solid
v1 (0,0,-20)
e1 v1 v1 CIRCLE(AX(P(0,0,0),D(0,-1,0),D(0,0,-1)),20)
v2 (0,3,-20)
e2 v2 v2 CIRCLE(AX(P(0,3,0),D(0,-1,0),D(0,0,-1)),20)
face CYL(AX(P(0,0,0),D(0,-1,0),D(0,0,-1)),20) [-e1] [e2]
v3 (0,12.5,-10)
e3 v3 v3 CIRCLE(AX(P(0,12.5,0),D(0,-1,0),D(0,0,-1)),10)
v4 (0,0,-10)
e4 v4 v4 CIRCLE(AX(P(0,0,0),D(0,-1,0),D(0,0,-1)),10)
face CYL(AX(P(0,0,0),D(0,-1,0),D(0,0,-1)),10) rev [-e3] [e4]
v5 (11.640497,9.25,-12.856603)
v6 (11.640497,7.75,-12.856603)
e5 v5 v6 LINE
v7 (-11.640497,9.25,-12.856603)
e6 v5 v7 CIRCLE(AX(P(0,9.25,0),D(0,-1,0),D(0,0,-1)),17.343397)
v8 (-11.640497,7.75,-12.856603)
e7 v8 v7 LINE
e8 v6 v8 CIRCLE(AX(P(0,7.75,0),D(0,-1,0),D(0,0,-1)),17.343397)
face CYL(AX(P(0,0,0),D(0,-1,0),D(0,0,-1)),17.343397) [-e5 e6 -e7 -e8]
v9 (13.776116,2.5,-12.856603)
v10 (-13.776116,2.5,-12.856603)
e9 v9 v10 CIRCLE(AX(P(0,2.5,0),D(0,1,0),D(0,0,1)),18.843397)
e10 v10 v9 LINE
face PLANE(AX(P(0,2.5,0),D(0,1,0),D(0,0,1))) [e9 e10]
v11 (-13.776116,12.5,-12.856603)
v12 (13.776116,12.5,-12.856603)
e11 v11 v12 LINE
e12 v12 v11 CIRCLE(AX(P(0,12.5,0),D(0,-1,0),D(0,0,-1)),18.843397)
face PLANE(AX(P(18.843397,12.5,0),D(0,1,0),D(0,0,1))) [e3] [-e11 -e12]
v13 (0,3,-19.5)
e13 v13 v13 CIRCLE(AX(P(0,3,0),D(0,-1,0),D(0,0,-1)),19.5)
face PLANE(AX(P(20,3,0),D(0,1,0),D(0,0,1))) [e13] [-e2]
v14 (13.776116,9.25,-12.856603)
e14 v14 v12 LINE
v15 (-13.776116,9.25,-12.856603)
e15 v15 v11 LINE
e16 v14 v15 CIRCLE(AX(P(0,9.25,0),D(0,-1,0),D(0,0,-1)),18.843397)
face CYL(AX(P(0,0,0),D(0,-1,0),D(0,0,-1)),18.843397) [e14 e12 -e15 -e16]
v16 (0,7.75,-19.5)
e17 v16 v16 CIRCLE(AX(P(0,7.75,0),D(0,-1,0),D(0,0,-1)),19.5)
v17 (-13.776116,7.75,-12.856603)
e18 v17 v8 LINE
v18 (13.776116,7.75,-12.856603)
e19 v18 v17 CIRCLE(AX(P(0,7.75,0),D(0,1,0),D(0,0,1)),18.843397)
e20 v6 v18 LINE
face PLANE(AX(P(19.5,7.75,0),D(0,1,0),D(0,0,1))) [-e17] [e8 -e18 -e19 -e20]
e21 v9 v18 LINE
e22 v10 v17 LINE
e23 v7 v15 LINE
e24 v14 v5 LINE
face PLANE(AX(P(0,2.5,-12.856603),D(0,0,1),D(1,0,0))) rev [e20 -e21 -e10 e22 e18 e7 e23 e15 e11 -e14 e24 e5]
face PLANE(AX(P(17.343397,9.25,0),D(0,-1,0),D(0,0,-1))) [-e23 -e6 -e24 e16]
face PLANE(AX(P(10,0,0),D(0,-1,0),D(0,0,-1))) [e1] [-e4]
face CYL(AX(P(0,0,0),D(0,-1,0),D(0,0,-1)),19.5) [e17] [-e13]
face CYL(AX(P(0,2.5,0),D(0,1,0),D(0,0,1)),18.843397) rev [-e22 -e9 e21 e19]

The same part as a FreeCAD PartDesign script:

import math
import FreeCAD as App
import Part
import Sketcher

doc = App.newDocument("Part")
body = doc.addObject("PartDesign::Body", "Body")

# Sketch on XY plane
sketch1 = doc.addObject("Sketcher::SketchObject", "Sketch")
body.addObject(sketch1)
sketch1.AttachmentSupport = (doc.XY_Plane, [""])
sketch1.MapMode = "FlatFace"
sketch1.addGeometry(Part.LineSegment(App.Vector(10, 0, 0), App.Vector(20, 0, 0)), False)
sketch1.addGeometry(Part.LineSegment(App.Vector(20, 0, 0), App.Vector(20, 3, 0)), False)
sketch1.addGeometry(Part.LineSegment(App.Vector(20, 3, 0), App.Vector(19.5, 3, 0)), False)
sketch1.addGeometry(Part.LineSegment(App.Vector(19.5, 3, 0), App.Vector(19.5, 7.75, 0)), False)
sketch1.addGeometry(Part.LineSegment(App.Vector(19.5, 7.75, 0), App.Vector(17.343397, 7.75, 0)), False)
sketch1.addGeometry(Part.LineSegment(App.Vector(17.343397, 7.75, 0), App.Vector(17.343397, 9.25, 0)), False)
sketch1.addGeometry(Part.LineSegment(App.Vector(17.343397, 9.25, 0), App.Vector(18.843397, 9.25, 0)), False)
sketch1.addGeometry(Part.LineSegment(App.Vector(18.843397, 9.25, 0), App.Vector(18.843397, 12.5, 0)), False)
sketch1.addGeometry(Part.LineSegment(App.Vector(18.843397, 12.5, 0), App.Vector(10, 12.5, 0)), False)
sketch1.addGeometry(Part.LineSegment(App.Vector(10, 12.5, 0), App.Vector(10, 0, 0)), False)
sketch1.addConstraint(Sketcher.Constraint("Coincident", 0, 2, 1, 1))
sketch1.addConstraint(Sketcher.Constraint("Coincident", 1, 2, 2, 1))
sketch1.addConstraint(Sketcher.Constraint("Coincident", 2, 2, 3, 1))
sketch1.addConstraint(Sketcher.Constraint("Coincident", 3, 2, 4, 1))
sketch1.addConstraint(Sketcher.Constraint("Coincident", 4, 2, 5, 1))
sketch1.addConstraint(Sketcher.Constraint("Coincident", 5, 2, 6, 1))
sketch1.addConstraint(Sketcher.Constraint("Coincident", 6, 2, 7, 1))
sketch1.addConstraint(Sketcher.Constraint("Coincident", 7, 2, 8, 1))
sketch1.addConstraint(Sketcher.Constraint("Coincident", 8, 2, 9, 1))
sketch1.addConstraint(Sketcher.Constraint("Coincident", 9, 2, 0, 1))
sketch1.addConstraint(Sketcher.Constraint("Horizontal", 0))
sketch1.addConstraint(Sketcher.Constraint("Vertical", 1))
sketch1.addConstraint(Sketcher.Constraint("Horizontal", 2))
sketch1.addConstraint(Sketcher.Constraint("Vertical", 3))
sketch1.addConstraint(Sketcher.Constraint("Horizontal", 4))
sketch1.addConstraint(Sketcher.Constraint("Vertical", 5))
sketch1.addConstraint(Sketcher.Constraint("Horizontal", 6))
sketch1.addConstraint(Sketcher.Constraint("Vertical", 7))
sketch1.addConstraint(Sketcher.Constraint("Horizontal", 8))
sketch1.addConstraint(Sketcher.Constraint("Vertical", 9))
sketch1.addConstraint(Sketcher.Constraint("PointOnObject", 0, 2, -1))
sketch1.addConstraint(Sketcher.Constraint("Equal", 6, 5))
sketch1.addConstraint(Sketcher.Constraint("DistanceX", 0, 1, 0, 2, 10.0))
sketch1.addConstraint(Sketcher.Constraint("DistanceY", 1, 1, 1, 2, 3.0))
sketch1.addConstraint(Sketcher.Constraint("DistanceX", 2, 2, 2, 1, 0.5))
sketch1.addConstraint(Sketcher.Constraint("DistanceX", 6, 1, 6, 2, 1.5))
sketch1.addConstraint(Sketcher.Constraint("DistanceY", 9, 2, 9, 1, 12.5))
sketch1.addConstraint(Sketcher.Constraint("DistanceX", -1, 1, 0, 2, 20.0))
sketch1.addConstraint(Sketcher.Constraint("DistanceY", 3, 1, 3, 2, 4.75))
sketch1.addConstraint(Sketcher.Constraint("DistanceX", 4, 2, 4, 1, 2.156603))
revolution = doc.addObject("PartDesign::Revolution", "Revolution")
body.addObject(revolution)
revolution.Profile = sketch1
revolution.ReferenceAxis = (sketch1, ["V_Axis"])
revolution.Angle = 360

# Sketch on XZ plane
sketch2 = doc.addObject("Sketcher::SketchObject", "Sketch001")
body.addObject(sketch2)
sketch2.AttachmentSupport = (doc.XZ_Plane, [""])
sketch2.MapMode = "FlatFace"
sketch2.AttachmentOffset = App.Placement(App.Vector(0, 0, -12.5), App.Rotation())
sketch2.addGeometry(Part.ArcOfCircle(Part.Circle(App.Vector(0, 0, 0), App.Vector(0, 0, 1), 18.843397), math.radians(-136.97739), math.radians(-43.02261)), False)
sketch2.addGeometry(Part.LineSegment(App.Vector(-13.776116, -12.856603, 0), App.Vector(13.776116, -12.856603, 0)), False)
sketch2.addConstraint(Sketcher.Constraint("Coincident", 0, 1, 1, 1))
sketch2.addConstraint(Sketcher.Constraint("Coincident", 1, 2, 0, 2))
sketch2.addConstraint(Sketcher.Constraint("Horizontal", 1))
sketch2.addConstraint(Sketcher.Constraint("Coincident", 0, 3, -1, 1))
sketch2.addConstraint(Sketcher.Constraint("Radius", 0, 18.843397))
sketch2.addConstraint(Sketcher.Constraint("DistanceX", 1, 1, 1, 2, 27.552231))
pocket1 = doc.addObject("PartDesign::Pocket", "Pocket")
body.addObject(pocket1)
pocket1.Profile = sketch2
pocket1.Length = 10
pocket1.Reversed = True

doc.recompute()
